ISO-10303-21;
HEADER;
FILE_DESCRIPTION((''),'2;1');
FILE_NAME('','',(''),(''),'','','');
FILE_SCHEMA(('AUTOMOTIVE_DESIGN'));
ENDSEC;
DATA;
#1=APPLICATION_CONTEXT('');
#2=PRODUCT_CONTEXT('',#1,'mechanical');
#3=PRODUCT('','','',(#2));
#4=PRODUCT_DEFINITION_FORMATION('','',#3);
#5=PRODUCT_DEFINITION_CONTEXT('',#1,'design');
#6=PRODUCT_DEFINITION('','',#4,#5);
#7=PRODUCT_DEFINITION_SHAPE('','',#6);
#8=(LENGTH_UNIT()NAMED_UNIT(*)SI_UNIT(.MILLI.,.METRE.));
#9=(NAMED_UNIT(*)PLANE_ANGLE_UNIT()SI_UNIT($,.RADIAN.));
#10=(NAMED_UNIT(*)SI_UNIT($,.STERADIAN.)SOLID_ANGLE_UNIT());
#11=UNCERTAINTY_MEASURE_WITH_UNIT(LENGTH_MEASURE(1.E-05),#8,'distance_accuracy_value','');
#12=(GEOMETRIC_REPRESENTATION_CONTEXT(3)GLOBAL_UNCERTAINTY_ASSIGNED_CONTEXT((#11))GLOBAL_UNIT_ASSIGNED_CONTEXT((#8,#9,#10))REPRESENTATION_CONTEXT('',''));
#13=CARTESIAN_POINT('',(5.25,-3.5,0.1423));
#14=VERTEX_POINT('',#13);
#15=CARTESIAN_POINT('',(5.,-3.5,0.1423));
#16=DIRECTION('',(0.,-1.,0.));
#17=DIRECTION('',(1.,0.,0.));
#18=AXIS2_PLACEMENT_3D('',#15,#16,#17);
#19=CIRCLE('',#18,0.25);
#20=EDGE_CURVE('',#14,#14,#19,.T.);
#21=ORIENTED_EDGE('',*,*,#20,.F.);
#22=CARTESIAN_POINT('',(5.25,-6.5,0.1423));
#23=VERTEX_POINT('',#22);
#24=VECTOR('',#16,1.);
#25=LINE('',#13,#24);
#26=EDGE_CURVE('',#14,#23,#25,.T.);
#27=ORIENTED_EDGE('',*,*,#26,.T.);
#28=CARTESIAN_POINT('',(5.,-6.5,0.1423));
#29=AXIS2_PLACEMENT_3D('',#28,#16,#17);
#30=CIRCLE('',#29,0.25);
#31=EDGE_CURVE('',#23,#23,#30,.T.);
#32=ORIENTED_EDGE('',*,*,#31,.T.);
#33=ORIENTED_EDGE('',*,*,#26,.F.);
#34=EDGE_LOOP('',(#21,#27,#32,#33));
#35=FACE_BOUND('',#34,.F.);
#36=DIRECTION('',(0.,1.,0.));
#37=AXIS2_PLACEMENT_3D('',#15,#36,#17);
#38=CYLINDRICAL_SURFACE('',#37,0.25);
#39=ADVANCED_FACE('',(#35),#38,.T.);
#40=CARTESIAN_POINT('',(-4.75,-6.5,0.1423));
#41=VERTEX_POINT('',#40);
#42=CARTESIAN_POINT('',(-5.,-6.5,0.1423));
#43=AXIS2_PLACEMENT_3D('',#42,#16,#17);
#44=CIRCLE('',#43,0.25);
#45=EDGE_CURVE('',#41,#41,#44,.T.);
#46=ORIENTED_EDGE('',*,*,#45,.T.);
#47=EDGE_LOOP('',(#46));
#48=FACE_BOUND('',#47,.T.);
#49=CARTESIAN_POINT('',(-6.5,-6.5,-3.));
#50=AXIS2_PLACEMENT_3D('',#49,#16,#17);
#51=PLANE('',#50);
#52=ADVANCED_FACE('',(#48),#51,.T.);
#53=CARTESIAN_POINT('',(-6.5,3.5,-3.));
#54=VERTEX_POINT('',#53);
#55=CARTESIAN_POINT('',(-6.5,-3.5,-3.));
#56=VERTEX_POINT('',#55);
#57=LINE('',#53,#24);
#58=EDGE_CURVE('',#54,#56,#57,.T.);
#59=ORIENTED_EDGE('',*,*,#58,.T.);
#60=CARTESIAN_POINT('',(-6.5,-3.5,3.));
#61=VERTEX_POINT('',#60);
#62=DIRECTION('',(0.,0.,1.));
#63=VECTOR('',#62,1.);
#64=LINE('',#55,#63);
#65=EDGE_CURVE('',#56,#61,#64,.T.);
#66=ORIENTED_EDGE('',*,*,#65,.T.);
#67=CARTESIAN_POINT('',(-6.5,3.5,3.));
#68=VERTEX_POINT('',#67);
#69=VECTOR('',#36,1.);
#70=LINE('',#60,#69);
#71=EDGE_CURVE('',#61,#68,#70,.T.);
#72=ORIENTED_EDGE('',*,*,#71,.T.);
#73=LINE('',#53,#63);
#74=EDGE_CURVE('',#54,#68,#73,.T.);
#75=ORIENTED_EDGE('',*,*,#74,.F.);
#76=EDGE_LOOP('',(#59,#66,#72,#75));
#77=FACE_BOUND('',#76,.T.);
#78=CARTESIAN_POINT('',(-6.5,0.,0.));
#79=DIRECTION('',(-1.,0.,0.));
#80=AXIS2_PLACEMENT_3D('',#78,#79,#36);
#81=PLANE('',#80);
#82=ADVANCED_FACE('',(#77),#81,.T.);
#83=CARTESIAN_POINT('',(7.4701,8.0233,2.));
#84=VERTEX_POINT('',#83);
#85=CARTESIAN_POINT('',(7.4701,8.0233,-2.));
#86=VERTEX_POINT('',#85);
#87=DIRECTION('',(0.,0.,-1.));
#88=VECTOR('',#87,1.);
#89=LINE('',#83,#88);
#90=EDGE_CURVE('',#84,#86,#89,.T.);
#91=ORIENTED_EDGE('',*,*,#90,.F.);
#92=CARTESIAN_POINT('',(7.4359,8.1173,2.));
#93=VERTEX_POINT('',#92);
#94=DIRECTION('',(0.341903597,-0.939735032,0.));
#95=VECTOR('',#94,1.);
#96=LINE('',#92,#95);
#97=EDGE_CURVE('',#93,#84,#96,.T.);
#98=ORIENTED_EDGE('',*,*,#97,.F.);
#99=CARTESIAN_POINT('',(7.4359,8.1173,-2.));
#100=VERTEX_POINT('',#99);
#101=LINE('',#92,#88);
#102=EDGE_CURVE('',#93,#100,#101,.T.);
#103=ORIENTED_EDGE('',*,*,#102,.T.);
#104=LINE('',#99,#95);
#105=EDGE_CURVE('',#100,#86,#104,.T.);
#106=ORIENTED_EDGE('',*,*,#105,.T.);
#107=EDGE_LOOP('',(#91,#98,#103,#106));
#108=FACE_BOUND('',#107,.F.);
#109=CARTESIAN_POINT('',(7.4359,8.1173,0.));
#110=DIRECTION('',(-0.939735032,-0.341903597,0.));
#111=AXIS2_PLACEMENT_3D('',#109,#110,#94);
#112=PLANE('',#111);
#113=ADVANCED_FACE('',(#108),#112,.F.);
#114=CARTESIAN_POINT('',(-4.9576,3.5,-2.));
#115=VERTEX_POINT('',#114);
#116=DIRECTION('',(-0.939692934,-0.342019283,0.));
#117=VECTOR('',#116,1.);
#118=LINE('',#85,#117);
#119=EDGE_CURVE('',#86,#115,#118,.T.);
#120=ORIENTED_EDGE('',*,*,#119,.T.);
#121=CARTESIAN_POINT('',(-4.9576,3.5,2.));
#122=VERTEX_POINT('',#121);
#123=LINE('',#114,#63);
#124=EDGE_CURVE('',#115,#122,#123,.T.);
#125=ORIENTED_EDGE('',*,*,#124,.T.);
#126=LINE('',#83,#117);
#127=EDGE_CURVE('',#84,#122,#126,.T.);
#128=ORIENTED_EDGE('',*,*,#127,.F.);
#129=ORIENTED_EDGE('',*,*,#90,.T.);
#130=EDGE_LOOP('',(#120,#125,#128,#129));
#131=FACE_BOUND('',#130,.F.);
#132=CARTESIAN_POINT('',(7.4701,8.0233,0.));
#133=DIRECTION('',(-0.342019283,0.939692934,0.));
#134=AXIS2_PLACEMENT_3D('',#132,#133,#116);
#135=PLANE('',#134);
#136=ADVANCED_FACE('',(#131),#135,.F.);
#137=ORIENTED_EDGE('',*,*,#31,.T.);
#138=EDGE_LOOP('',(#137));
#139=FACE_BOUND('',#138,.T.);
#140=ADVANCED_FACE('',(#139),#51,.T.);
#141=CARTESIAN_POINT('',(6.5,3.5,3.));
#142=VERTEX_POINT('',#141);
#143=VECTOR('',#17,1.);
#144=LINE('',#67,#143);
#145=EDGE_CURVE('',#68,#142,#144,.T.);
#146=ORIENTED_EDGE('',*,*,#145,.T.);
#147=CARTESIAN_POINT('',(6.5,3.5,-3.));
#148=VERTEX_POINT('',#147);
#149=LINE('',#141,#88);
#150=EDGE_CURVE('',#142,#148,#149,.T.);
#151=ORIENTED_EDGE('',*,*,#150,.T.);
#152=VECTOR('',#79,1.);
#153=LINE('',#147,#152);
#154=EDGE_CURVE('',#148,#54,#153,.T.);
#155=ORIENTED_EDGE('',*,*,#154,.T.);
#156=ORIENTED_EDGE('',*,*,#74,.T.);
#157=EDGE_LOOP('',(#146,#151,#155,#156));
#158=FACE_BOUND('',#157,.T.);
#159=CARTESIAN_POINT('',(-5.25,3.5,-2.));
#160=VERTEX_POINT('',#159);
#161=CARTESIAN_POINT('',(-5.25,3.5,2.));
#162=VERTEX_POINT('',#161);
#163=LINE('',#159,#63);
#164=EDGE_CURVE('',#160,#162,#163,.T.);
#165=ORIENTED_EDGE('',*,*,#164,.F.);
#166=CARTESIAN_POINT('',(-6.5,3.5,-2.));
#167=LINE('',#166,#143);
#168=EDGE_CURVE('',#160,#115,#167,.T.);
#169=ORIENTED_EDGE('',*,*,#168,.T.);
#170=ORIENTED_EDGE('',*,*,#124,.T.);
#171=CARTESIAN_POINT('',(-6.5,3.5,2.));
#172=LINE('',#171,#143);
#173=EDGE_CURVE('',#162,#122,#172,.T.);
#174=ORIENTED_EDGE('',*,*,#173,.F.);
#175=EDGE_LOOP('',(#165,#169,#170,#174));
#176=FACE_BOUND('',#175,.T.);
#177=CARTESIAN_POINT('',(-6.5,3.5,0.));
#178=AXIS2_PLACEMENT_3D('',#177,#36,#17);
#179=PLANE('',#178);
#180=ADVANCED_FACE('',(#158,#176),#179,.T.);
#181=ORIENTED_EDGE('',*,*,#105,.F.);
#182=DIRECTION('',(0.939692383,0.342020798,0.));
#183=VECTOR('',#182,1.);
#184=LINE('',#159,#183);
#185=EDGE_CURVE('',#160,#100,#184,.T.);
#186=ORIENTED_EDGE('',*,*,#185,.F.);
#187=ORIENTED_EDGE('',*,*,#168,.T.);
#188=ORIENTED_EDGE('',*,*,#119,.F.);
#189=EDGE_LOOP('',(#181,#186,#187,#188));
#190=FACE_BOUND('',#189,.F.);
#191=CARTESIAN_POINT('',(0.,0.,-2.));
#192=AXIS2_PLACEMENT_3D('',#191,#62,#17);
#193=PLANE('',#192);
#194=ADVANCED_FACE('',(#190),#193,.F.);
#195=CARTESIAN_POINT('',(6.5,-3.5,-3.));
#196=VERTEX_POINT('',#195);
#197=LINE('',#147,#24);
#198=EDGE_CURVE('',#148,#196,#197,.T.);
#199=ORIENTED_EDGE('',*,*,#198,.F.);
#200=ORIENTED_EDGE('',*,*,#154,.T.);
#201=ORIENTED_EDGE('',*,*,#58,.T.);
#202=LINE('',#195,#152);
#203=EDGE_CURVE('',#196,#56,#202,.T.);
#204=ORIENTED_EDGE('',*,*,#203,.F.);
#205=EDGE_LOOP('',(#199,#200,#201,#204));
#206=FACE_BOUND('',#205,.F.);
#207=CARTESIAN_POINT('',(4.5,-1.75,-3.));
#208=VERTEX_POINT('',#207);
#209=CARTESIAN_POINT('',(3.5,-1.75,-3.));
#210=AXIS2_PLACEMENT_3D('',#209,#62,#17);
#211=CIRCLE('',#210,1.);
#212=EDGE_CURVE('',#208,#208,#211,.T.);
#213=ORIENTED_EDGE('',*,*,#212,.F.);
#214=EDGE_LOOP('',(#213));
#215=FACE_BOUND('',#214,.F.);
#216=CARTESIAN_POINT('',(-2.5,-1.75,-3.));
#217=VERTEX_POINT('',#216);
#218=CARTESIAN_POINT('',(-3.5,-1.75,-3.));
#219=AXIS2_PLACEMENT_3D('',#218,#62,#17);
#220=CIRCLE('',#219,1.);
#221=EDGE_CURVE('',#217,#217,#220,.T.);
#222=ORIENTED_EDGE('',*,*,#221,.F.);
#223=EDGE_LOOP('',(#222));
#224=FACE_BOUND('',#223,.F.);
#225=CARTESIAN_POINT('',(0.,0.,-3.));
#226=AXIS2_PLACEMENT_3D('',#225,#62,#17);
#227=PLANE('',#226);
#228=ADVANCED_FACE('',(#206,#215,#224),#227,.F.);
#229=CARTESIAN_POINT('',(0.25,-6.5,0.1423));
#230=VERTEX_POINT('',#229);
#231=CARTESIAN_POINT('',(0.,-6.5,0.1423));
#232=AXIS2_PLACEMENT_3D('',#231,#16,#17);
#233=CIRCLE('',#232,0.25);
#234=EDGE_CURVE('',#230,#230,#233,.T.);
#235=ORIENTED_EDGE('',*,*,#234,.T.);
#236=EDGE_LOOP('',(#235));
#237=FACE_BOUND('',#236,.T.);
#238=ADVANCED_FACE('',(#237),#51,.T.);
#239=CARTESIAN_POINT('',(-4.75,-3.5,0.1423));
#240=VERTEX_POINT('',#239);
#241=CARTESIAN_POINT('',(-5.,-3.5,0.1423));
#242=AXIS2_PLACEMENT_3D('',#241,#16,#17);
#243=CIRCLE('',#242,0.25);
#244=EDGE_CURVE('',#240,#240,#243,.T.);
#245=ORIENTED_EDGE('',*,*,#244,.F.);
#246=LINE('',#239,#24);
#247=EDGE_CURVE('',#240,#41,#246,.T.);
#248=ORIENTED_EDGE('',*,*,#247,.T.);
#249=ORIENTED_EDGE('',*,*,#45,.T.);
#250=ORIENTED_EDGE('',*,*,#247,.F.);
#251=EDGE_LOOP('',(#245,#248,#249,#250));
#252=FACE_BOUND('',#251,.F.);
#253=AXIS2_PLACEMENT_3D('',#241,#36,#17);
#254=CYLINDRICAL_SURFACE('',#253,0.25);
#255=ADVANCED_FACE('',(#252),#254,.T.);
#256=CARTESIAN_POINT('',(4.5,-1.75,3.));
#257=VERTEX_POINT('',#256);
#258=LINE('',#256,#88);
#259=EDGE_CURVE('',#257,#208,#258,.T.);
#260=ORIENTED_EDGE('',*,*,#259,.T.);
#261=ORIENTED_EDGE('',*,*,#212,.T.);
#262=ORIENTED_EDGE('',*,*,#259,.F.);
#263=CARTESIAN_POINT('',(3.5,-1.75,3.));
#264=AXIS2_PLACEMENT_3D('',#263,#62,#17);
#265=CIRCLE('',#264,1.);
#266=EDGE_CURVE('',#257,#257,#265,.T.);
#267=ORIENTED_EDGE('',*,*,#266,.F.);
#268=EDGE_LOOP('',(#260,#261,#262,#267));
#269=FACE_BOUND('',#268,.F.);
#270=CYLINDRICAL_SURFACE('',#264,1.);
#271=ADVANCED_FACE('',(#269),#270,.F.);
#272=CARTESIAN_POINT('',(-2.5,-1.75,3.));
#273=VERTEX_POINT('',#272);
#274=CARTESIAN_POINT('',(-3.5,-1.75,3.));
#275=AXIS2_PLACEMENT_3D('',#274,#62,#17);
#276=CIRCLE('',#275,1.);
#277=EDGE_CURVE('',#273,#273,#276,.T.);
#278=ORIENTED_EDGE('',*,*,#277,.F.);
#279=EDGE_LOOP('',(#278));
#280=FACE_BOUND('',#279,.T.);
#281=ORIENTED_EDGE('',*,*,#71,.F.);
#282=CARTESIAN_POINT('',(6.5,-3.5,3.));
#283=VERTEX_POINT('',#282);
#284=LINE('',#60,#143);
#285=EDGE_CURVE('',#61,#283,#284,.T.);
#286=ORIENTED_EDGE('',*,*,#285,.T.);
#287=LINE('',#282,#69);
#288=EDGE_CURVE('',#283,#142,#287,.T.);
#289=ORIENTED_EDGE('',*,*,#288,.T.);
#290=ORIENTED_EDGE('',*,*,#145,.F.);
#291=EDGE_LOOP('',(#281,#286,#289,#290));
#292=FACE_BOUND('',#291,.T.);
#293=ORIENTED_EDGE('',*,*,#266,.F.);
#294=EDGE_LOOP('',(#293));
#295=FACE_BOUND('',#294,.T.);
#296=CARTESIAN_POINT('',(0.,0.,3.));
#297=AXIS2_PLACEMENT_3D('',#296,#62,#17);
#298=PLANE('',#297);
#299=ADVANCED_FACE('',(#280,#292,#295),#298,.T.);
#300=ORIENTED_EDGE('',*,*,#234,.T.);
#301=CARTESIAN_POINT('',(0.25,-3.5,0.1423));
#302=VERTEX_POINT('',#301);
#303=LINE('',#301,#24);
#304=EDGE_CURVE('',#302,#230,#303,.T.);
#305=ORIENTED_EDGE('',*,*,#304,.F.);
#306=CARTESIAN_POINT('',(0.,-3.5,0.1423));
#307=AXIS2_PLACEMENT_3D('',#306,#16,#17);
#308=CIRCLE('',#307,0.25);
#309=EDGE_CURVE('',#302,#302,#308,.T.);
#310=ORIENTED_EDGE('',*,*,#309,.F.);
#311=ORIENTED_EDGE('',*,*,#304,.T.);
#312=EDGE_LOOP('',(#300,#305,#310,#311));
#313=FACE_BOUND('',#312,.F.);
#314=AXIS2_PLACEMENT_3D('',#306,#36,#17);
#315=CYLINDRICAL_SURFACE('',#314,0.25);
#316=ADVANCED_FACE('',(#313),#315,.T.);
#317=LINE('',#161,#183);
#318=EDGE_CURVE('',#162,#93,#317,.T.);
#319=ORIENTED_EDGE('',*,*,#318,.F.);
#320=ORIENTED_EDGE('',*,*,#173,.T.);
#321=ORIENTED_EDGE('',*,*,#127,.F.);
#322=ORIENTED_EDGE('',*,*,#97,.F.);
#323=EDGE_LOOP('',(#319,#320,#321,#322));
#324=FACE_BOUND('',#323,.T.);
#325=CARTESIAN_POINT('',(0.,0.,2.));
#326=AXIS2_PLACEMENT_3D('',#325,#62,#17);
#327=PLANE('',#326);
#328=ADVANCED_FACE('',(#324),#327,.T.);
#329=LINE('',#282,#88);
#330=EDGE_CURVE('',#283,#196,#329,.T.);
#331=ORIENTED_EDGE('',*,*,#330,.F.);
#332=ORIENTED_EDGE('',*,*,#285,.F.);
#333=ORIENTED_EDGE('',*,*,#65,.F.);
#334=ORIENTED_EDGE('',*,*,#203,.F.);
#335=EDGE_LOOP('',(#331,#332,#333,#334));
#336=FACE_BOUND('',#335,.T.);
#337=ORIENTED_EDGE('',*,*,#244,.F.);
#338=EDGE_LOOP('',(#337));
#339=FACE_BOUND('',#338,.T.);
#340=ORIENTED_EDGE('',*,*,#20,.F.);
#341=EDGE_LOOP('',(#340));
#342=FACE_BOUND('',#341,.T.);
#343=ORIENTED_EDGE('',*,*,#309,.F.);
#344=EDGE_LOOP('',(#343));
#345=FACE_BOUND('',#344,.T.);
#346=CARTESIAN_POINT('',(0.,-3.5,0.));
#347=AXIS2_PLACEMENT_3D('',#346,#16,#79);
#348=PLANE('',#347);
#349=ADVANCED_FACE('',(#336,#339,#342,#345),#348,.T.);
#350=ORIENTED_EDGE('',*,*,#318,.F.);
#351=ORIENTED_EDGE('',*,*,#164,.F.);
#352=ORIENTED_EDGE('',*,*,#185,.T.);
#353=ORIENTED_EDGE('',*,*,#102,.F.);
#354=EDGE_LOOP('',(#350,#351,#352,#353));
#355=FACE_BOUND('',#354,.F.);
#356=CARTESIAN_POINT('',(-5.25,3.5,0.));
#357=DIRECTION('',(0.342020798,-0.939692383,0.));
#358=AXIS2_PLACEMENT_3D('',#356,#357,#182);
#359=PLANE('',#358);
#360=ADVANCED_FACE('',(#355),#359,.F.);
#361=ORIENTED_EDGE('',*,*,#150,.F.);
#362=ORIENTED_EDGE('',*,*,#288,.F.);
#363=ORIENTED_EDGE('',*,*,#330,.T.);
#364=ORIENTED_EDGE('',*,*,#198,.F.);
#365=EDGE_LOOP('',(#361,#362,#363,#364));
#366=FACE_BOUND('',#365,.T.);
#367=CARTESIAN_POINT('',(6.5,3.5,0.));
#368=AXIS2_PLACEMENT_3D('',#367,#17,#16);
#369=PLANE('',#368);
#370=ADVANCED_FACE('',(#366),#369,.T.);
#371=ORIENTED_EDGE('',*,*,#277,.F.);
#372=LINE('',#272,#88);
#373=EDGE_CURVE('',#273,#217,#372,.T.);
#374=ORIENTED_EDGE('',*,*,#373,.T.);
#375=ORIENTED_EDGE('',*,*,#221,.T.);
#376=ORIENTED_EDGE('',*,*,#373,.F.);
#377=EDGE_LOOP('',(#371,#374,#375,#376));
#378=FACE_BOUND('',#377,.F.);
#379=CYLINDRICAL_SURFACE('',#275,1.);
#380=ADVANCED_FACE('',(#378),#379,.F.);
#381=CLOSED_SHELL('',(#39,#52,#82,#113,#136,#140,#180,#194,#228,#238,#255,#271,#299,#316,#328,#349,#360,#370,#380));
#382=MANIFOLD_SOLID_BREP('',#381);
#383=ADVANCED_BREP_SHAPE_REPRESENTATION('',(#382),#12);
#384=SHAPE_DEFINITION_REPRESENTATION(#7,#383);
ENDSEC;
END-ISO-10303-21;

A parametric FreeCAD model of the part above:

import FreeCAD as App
import Part
import Sketcher

V = App.Vector
Q = App.Units.Quantity

doc = App.newDocument("Part")
body = doc.addObject("PartDesign::Body", "Body")

# Sketch on XY plane
sketch1 = body.newObject("Sketcher::SketchObject", "Sketch")
sketch1.AttachmentSupport = (doc.getObject("XY_Plane"), [""])
sketch1.MapMode = "FlatFace"
sketch1.addGeometry(Part.LineSegment(V(-6, 4, 0), V(-6, -4, 0)), False)
sketch1.addGeometry(Part.LineSegment(V(-6, -4, 0), V(6, -4, 0)), False)
sketch1.addGeometry(Part.LineSegment(V(6, -4, 0), V(6, 4, 0)), False)
sketch1.addGeometry(Part.LineSegment(V(6, 4, 0), V(-6, 4, 0)), False)
sketch1.addConstraint(Sketcher.Constraint("Coincident", 0, 2, 1, 1))
sketch1.addConstraint(Sketcher.Constraint("Coincident", 1, 2, 2, 1))
sketch1.addConstraint(Sketcher.Constraint("Coincident", 2, 2, 3, 1))
sketch1.addConstraint(Sketcher.Constraint("Coincident", 3, 2, 0, 1))
sketch1.addConstraint(Sketcher.Constraint("Vertical", 0))
sketch1.addConstraint(Sketcher.Constraint("Horizontal", 1))
sketch1.addConstraint(Sketcher.Constraint("Vertical", 2))
sketch1.addConstraint(Sketcher.Constraint("Horizontal", 3))
sketch1.addConstraint(Sketcher.Constraint("Symmetric", 0, 2, 2, 2, -1, 1))
sketch1.addConstraint(Sketcher.Constraint("DistanceX", 1, 1, 1, 2, 13.0))
sketch1.addConstraint(Sketcher.Constraint("DistanceY", 0, 2, 0, 1, 7.0))
pad1 = body.newObject("PartDesign::Pad", "Pad")
pad1.Profile = sketch1
pad1.Length = 6
pad1.Midplane = True

# Sketch on XY plane
sketch2 = body.newObject("Sketcher::SketchObject", "Sketch001")
sketch2.AttachmentSupport = (doc.getObject("XY_Plane"), [""])
sketch2.MapMode = "FlatFace"
sketch2.AttachmentOffset = App.Placement(V(0, 0, 3), App.Rotation())
sketch2.addGeometry(Part.Circle(V(3.5, -1.8, 0), V(0, 0, 1), 1), False)
sketch2.addGeometry(Part.Circle(V(-3.5, -1.8, 0), V(0, 0, 1), 1), False)
sketch2.addConstraint(Sketcher.Constraint("Equal", 0, 1))
sketch2.addConstraint(Sketcher.Constraint("Symmetric", 0, 3, 1, 3, -2))
sketch2.addConstraint(Sketcher.Constraint("Diameter", 0, 2.0))
sketch2.addConstraint(Sketcher.Constraint("DistanceY", 0, 3, -1, 1, 1.75))
sketch2.addConstraint(Sketcher.Constraint("DistanceX", 1, 3, 0, 3, 7.0))
pocket1 = body.newObject("PartDesign::Pocket", "Pocket")
pocket1.Profile = sketch2
pocket1.Length = 6

# Sketch on XY plane
sketch3 = body.newObject("Sketcher::SketchObject", "Sketch002")
sketch3.AttachmentSupport = (doc.getObject("XY_Plane"), [""])
sketch3.MapMode = "FlatFace"
sketch3.addGeometry(Part.LineSegment(V(7.44, 8.12, 0), V(-5.25, 3.5, 0)), False)
sketch3.addGeometry(Part.LineSegment(V(-5.25, 3.5, 0), V(-4.96, 3.5, 0)), False)
sketch3.addGeometry(Part.LineSegment(V(-4.96, 3.5, 0), V(7.47, 8.02, 0)), False)
sketch3.addGeometry(Part.LineSegment(V(7.47, 8.02, 0), V(7.44, 8.12, 0)), False)
sketch3.addConstraint(Sketcher.Constraint("Coincident", 0, 2, 1, 1))
sketch3.addConstraint(Sketcher.Constraint("Coincident", 1, 2, 2, 1))
sketch3.addConstraint(Sketcher.Constraint("Coincident", 2, 2, 3, 1))
sketch3.addConstraint(Sketcher.Constraint("Coincident", 3, 2, 0, 1))
sketch3.addConstraint(Sketcher.Constraint("Horizontal", 1))
sketch3.addConstraint(Sketcher.Constraint("Parallel", 0, 2))
sketch3.addConstraint(Sketcher.Constraint("Perpendicular", 2, 3))
sketch3.addConstraint(Sketcher.Constraint("Angle", 0, Q("-160 deg")))
sketch3.addConstraint(Sketcher.Constraint("Distance", 0, 13.5))
sketch3.addConstraint(Sketcher.Constraint("Distance", 3, 0.1))
sketch3.addConstraint(Sketcher.Constraint("DistanceY", -1, 1, 0, 2, 3.5))
sketch3.addConstraint(Sketcher.Constraint("DistanceX", 0, 2, -1, 1, 5.25))
pad2 = body.newObject("PartDesign::Pad", "Pad001")
pad2.Profile = sketch3
pad2.Length = 4
pad2.Midplane = True

# Sketch on XZ plane
sketch4 = body.newObject("Sketcher::SketchObject", "Sketch003")
sketch4.AttachmentSupport = (doc.getObject("XZ_Plane"), [""])
sketch4.MapMode = "FlatFace"
sketch4.AttachmentOffset = App.Placement(V(0, 0, 3.5), App.Rotation())
sketch4.addGeometry(Part.Circle(V(-5, 0.14, 0), V(0, 0, 1), 0.25), False)
sketch4.addGeometry(Part.Circle(V(5, 0.14, 0), V(0, 0, 1), 0.25), False)
sketch4.addGeometry(Part.Circle(V(0, 0.14, 0), V(0, 0, 1), 0.25), False)
sketch4.addConstraint(Sketcher.Constraint("Equal", 0, 1))
sketch4.addConstraint(Sketcher.Constraint("Equal", 1, 2))
sketch4.addConstraint(Sketcher.Constraint("Symmetric", 0, 3, 1, 3, -2))
sketch4.addConstraint(Sketcher.Constraint("PointOnObject", 2, 3, -2))
sketch4.addConstraint(Sketcher.Constraint("Horizontal", 1, 3, 2, 3))
sketch4.addConstraint(Sketcher.Constraint("Diameter", 0, 0.5))
sketch4.addConstraint(Sketcher.Constraint("DistanceX", 0, 3, -1, 1, 5.0))
sketch4.addConstraint(Sketcher.Constraint("DistanceY", -1, 1, 0, 3, 0.1423))
pad3 = body.newObject("PartDesign::Pad", "Pad002")
pad3.Profile = sketch4
pad3.Length = 3

doc.recompute()
